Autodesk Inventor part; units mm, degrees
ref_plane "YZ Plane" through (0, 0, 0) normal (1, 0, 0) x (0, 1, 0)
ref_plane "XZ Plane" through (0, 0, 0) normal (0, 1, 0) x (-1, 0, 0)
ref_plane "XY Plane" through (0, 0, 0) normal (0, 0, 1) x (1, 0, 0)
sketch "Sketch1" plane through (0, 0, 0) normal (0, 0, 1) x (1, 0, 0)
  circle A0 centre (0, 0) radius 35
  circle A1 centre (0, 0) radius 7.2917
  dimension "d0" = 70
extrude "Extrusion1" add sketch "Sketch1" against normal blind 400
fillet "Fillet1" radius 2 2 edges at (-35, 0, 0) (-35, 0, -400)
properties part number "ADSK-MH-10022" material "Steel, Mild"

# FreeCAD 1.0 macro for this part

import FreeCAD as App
import Part
import Sketcher

V = App.Vector


def edges_at(feature, points):
    """Names of the edges that pass closest to the given points."""
    edges = feature.Shape.Edges
    near = lambda p: min(range(len(edges)), key=lambda i: edges[i].distToShape(Part.Vertex(*p))[0])
    return sorted({f"Edge{near(p) + 1}" for p in points})

doc = App.newDocument("Part")
body = doc.addObject("PartDesign::Body", "Body")

sketch1 = body.newObject("Sketcher::SketchObject", "Sketch")
sketch1.AttachmentSupport = (doc.getObject("XY_Plane"), [""])
sketch1.MapMode = "FlatFace"
sketch1.addGeometry([
    Part.Circle(V(0, 0, 0), V(0, 0, 1), 35),
    Part.Circle(V(0, 0, 0), V(0, 0, 1), 7.2917),
], False)
sketch1.addConstraint([
    Sketcher.Constraint("Coincident", 0, 3, -1, 1),
    Sketcher.Constraint("Coincident", 1, 3, -1, 1),
    Sketcher.Constraint("Diameter", 0, 70.0),
    Sketcher.Constraint("Diameter", 1, 14.5834),
])
pad1 = body.newObject("PartDesign::Pad", "Pad")
pad1.Profile = sketch1
pad1.Length = 400
pad1.Reversed = True
doc.recompute()

fillet = body.newObject("PartDesign::Fillet", "Fillet")
fillet.Base = (pad1, edges_at(pad1, [(-35, 0, 0), (-35, 0, -400)]))
fillet.Radius = 2

doc.recompute()
